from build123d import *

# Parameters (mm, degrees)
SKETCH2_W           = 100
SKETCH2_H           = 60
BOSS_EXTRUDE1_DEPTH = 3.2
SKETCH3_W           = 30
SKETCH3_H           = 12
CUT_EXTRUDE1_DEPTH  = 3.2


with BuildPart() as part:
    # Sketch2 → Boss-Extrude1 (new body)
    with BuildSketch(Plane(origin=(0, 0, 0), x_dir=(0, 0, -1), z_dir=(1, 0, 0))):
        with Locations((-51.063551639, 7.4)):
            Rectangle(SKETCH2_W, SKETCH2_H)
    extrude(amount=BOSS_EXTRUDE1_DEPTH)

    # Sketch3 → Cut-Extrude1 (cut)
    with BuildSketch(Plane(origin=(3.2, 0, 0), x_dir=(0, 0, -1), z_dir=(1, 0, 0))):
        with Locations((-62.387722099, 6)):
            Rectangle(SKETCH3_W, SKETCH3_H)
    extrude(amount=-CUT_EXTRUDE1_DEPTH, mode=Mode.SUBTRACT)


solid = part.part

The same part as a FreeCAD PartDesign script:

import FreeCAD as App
import Part
import Sketcher

V = App.Vector


def add_polygon(sketch, points):
    """Adds a closed chain of lines whose ends are joined by coincident constraints."""
    first, n = sketch.GeometryCount, len(points)
    for a, b in zip(points, points[1:] + points[:1]):
        sketch.addGeometry(Part.LineSegment(App.Vector(*a, 0), App.Vector(*b, 0)), False)
    for i in range(n):
        sketch.addConstraint(Sketcher.Constraint("Coincident", first + i, 2, first + (i + 1) % n, 1))

doc = App.newDocument("Part")
body = doc.addObject("PartDesign::Body", "Body")

# Sketch on YZ plane
sketch1 = body.newObject("Sketcher::SketchObject", "Sketch")
sketch1.AttachmentSupport = (doc.getObject("YZ_Plane"), [""])
sketch1.MapMode = "FlatFace"
add_polygon(sketch1, [(37, 101), (-23, 101), (-23, 1), (37, 1)])  # lines 0-3
sketch1.addConstraint([
    Sketcher.Constraint("Horizontal", 0),
    Sketcher.Constraint("Vertical", 1),
    Sketcher.Constraint("Horizontal", 2),
    Sketcher.Constraint("Vertical", 3),
    Sketcher.Constraint("DistanceX", 0, 2, 0, 1, 60.0),
    Sketcher.Constraint("DistanceY", 1, 2, 1, 1, 100.0),
    Sketcher.Constraint("DistanceX", 0, 2, -1, 1, 22.6),
    Sketcher.Constraint("DistanceY", -1, 1, 0, 2, 101.063552),
])
pad1 = body.newObject("PartDesign::Pad", "Pad")
pad1.Profile = sketch1
pad1.Length = 3.2

# Sketch on YZ plane
sketch2 = body.newObject("Sketcher::SketchObject", "Sketch001")
sketch2.AttachmentSupport = (doc.getObject("YZ_Plane"), [""])
sketch2.MapMode = "FlatFace"
sketch2.AttachmentOffset = App.Placement(V(0, 0, 3.2), App.Rotation())
add_polygon(sketch2, [(12, 77), (0, 77), (0, 47), (12, 47)])  # lines 0-3
sketch2.addConstraint([
    Sketcher.Constraint("Horizontal", 0),
    Sketcher.Constraint("Vertical", 1),
    Sketcher.Constraint("Horizontal", 2),
    Sketcher.Constraint("Vertical", 3),
    Sketcher.Constraint("PointOnObject", 0, 2, -2),
    Sketcher.Constraint("DistanceX", 0, 2, 0, 1, 12.0),
    Sketcher.Constraint("DistanceY", 1, 2, 1, 1, 30.0),
    Sketcher.Constraint("DistanceY", -1, 1, 0, 2, 77.387722),
])
pocket1 = body.newObject("PartDesign::Pocket", "Pocket")
pocket1.Profile = sketch2
pocket1.Length = 3.2

doc.recompute()
